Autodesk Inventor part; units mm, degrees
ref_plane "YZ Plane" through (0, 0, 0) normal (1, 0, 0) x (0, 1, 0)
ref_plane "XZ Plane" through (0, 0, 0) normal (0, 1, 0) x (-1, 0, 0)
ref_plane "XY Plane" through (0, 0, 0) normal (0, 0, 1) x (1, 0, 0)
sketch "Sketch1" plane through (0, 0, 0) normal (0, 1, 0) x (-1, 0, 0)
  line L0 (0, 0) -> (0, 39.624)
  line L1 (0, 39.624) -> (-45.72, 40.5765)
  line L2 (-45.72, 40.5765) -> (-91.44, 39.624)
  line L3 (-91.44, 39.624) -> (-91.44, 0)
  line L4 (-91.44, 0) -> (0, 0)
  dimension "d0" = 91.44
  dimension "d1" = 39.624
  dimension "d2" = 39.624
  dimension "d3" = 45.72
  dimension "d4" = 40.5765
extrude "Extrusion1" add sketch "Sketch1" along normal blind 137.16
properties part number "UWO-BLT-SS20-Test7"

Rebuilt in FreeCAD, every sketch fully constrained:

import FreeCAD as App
import Part
import Sketcher
Q = App.Units.Quantity


def add_polygon(sketch, points):
    """Adds a closed chain of lines whose ends are joined by coincident constraints."""
    first, n = sketch.GeometryCount, len(points)
    for a, b in zip(points, points[1:] + points[:1]):
        sketch.addGeometry(Part.LineSegment(App.Vector(*a, 0), App.Vector(*b, 0)), False)
    for i in range(n):
        sketch.addConstraint(Sketcher.Constraint("Coincident", first + i, 2, first + (i + 1) % n, 1))

doc = App.newDocument("Part")
params = doc.addObject("Spreadsheet::Sheet", "Params")
for row, (alias, value) in enumerate([
    ("sketch1_width", "3.6 in"),
    ("sketch1_height", "1.56 in"),
    ("pad1_length", "5.4 in"),
], start=1):
    params.set(f"A{row}", alias)
    params.set(f"B{row}", "=" + value)
    params.setAlias(f"B{row}", alias)

body = doc.addObject("PartDesign::Body", "Body")

# Sketch on XZ plane
sketch1 = body.newObject("Sketcher::SketchObject", "Sketch")
sketch1.AttachmentSupport = (doc.getObject("XZ_Plane"), [""])
sketch1.MapMode = "FlatFace"
add_polygon(sketch1, [(91, 0), (0, 0), (0, 40), (46, 41), (91, 40)])  # lines 0-4
sketch1.addConstraint(Sketcher.Constraint("Horizontal", 0))
sketch1.addConstraint(Sketcher.Constraint("Vertical", 1))
sketch1.addConstraint(Sketcher.Constraint("Vertical", 4))
sketch1.addConstraint(Sketcher.Constraint("Coincident", 0, 2, -1, 1))
sketch1.addConstraint(Sketcher.Constraint("Horizontal", 1, 2, 3, 2))
sketch1.addConstraint(Sketcher.Constraint("Equal", 2, 3))
sketch1.addConstraint(Sketcher.Constraint("DistanceX", 0, 2, 0, 1, Q("3.6 in")))
sketch1.addConstraint(Sketcher.Constraint("DistanceY", 1, 1, 1, 2, Q("1.56 in")))
sketch1.addConstraint(Sketcher.Constraint("DistanceY", -1, 1, 2, 2, Q("1.5975 in")))
sketch1.setExpression("Constraints[11]", "Params.sketch1_width")
sketch1.setExpression("Constraints[12]", "Params.sketch1_height")
pad1 = body.newObject("PartDesign::Pad", "Pad")
pad1.Profile = sketch1
pad1.setExpression("Length", "Params.pad1_length")
pad1.Reversed = True

doc.recompute()
